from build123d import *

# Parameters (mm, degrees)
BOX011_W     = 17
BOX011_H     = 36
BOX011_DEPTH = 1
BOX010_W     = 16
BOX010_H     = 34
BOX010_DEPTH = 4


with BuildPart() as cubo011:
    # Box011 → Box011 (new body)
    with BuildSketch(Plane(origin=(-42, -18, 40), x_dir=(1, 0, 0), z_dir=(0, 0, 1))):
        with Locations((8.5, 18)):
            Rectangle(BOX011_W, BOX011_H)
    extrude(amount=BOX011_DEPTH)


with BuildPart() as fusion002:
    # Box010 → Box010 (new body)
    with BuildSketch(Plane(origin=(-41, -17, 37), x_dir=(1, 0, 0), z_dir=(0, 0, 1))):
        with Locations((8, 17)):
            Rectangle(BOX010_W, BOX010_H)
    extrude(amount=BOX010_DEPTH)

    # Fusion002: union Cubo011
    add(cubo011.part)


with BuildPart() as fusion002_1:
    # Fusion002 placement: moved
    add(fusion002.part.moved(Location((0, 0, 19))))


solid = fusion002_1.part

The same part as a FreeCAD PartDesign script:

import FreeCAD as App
import Part
import Sketcher

V = App.Vector
Q = App.Units.Quantity

doc = App.newDocument("Part")
params = doc.addObject("Spreadsheet::Sheet", "Params")
for row, (alias, value) in enumerate([
    ("sketch1_width", "17 mm"),
    ("sketch1_height", "36 mm"),
    ("pad1_length", "1 mm"),
    ("sketch2_width", "16 mm"),
    ("sketch2_height", "34 mm"),
    ("pad2_length", "4 mm"),
], start=1):
    params.set(f"A{row}", alias)
    params.set(f"B{row}", "=" + value)
    params.setAlias(f"B{row}", alias)

body = doc.addObject("PartDesign::Body", "Body")

sketch1 = body.newObject("Sketcher::SketchObject", "Sketch")
sketch1.AttachmentSupport = (doc.getObject("XY_Plane"), [""])
sketch1.MapMode = "FlatFace"
sketch1.AttachmentOffset = App.Placement(V(0, 0, 40), App.Rotation())
sketch1.addGeometry([
    Part.LineSegment(V(-42, 18, 0), V(-42, -18, 0)),
    Part.LineSegment(V(-42, -18, 0), V(-25, -18, 0)),
    Part.LineSegment(V(-25, -18, 0), V(-25, 18, 0)),
    Part.LineSegment(V(-25, 18, 0), V(-42, 18, 0)),
], False)
sketch1.addConstraint([
    Sketcher.Constraint("Coincident", 0, 2, 1, 1),
    Sketcher.Constraint("Coincident", 1, 2, 2, 1),
    Sketcher.Constraint("Coincident", 2, 2, 3, 1),
    Sketcher.Constraint("Coincident", 3, 2, 0, 1),
    Sketcher.Constraint("Vertical", 0),
    Sketcher.Constraint("Horizontal", 1),
    Sketcher.Constraint("Vertical", 2),
    Sketcher.Constraint("Horizontal", 3),
    Sketcher.Constraint("DistanceX", 1, 1, 1, 2, Q("17 mm")),
    Sketcher.Constraint("DistanceY", 0, 2, 0, 1, Q("36 mm")),
    Sketcher.Constraint("DistanceX", 0, 2, -1, 1, Q("42 mm")),
    Sketcher.Constraint("DistanceY", 0, 2, -1, 1, Q("18 mm")),
])
sketch1.setExpression("Constraints[8]", "Params.sketch1_width")
sketch1.setExpression("Constraints[9]", "Params.sketch1_height")
pad1 = body.newObject("PartDesign::Pad", "Pad")
pad1.Profile = sketch1
pad1.setExpression("Length", "Params.pad1_length")
body2 = doc.addObject("PartDesign::Body", "Body001")

sketch2 = body2.newObject("Sketcher::SketchObject", "Sketch001")
sketch2.AttachmentSupport = (doc.getObject("XY_Plane001"), [""])
sketch2.MapMode = "FlatFace"
sketch2.AttachmentOffset = App.Placement(V(0, 0, 37), App.Rotation())
sketch2.addGeometry([
    Part.LineSegment(V(-41, 17, 0), V(-41, -17, 0)),
    Part.LineSegment(V(-41, -17, 0), V(-25, -17, 0)),
    Part.LineSegment(V(-25, -17, 0), V(-25, 17, 0)),
    Part.LineSegment(V(-25, 17, 0), V(-41, 17, 0)),
], False)
sketch2.addConstraint([
    Sketcher.Constraint("Coincident", 0, 2, 1, 1),
    Sketcher.Constraint("Coincident", 1, 2, 2, 1),
    Sketcher.Constraint("Coincident", 2, 2, 3, 1),
    Sketcher.Constraint("Coincident", 3, 2, 0, 1),
    Sketcher.Constraint("Vertical", 0),
    Sketcher.Constraint("Horizontal", 1),
    Sketcher.Constraint("Vertical", 2),
    Sketcher.Constraint("Horizontal", 3),
    Sketcher.Constraint("DistanceX", 1, 1, 1, 2, Q("16 mm")),
    Sketcher.Constraint("DistanceY", 0, 2, 0, 1, Q("34 mm")),
    Sketcher.Constraint("DistanceX", 0, 2, -1, 1, Q("41 mm")),
    Sketcher.Constraint("DistanceY", 0, 2, -1, 1, Q("17 mm")),
])
sketch2.setExpression("Constraints[8]", "Params.sketch2_width")
sketch2.setExpression("Constraints[9]", "Params.sketch2_height")
pad2 = body2.newObject("PartDesign::Pad", "Pad001")
pad2.Profile = sketch2
pad2.setExpression("Length", "Params.pad2_length")
doc.recompute()

boolean = body2.newObject("PartDesign::Boolean", "Boolean")
boolean.Type = "Fuse"
boolean.addObjects([body])
body3 = doc.addObject("PartDesign::Body", "Body002")
doc.recompute()

body2.Placement = App.Placement(V(0, 0, 19), App.Rotation(V(0, 0, 1), 0))
boolean2 = body3.newObject("PartDesign::Boolean", "Boolean001")
boolean2.Type = "Fuse"
boolean2.addObjects([body2])

doc.recompute()
